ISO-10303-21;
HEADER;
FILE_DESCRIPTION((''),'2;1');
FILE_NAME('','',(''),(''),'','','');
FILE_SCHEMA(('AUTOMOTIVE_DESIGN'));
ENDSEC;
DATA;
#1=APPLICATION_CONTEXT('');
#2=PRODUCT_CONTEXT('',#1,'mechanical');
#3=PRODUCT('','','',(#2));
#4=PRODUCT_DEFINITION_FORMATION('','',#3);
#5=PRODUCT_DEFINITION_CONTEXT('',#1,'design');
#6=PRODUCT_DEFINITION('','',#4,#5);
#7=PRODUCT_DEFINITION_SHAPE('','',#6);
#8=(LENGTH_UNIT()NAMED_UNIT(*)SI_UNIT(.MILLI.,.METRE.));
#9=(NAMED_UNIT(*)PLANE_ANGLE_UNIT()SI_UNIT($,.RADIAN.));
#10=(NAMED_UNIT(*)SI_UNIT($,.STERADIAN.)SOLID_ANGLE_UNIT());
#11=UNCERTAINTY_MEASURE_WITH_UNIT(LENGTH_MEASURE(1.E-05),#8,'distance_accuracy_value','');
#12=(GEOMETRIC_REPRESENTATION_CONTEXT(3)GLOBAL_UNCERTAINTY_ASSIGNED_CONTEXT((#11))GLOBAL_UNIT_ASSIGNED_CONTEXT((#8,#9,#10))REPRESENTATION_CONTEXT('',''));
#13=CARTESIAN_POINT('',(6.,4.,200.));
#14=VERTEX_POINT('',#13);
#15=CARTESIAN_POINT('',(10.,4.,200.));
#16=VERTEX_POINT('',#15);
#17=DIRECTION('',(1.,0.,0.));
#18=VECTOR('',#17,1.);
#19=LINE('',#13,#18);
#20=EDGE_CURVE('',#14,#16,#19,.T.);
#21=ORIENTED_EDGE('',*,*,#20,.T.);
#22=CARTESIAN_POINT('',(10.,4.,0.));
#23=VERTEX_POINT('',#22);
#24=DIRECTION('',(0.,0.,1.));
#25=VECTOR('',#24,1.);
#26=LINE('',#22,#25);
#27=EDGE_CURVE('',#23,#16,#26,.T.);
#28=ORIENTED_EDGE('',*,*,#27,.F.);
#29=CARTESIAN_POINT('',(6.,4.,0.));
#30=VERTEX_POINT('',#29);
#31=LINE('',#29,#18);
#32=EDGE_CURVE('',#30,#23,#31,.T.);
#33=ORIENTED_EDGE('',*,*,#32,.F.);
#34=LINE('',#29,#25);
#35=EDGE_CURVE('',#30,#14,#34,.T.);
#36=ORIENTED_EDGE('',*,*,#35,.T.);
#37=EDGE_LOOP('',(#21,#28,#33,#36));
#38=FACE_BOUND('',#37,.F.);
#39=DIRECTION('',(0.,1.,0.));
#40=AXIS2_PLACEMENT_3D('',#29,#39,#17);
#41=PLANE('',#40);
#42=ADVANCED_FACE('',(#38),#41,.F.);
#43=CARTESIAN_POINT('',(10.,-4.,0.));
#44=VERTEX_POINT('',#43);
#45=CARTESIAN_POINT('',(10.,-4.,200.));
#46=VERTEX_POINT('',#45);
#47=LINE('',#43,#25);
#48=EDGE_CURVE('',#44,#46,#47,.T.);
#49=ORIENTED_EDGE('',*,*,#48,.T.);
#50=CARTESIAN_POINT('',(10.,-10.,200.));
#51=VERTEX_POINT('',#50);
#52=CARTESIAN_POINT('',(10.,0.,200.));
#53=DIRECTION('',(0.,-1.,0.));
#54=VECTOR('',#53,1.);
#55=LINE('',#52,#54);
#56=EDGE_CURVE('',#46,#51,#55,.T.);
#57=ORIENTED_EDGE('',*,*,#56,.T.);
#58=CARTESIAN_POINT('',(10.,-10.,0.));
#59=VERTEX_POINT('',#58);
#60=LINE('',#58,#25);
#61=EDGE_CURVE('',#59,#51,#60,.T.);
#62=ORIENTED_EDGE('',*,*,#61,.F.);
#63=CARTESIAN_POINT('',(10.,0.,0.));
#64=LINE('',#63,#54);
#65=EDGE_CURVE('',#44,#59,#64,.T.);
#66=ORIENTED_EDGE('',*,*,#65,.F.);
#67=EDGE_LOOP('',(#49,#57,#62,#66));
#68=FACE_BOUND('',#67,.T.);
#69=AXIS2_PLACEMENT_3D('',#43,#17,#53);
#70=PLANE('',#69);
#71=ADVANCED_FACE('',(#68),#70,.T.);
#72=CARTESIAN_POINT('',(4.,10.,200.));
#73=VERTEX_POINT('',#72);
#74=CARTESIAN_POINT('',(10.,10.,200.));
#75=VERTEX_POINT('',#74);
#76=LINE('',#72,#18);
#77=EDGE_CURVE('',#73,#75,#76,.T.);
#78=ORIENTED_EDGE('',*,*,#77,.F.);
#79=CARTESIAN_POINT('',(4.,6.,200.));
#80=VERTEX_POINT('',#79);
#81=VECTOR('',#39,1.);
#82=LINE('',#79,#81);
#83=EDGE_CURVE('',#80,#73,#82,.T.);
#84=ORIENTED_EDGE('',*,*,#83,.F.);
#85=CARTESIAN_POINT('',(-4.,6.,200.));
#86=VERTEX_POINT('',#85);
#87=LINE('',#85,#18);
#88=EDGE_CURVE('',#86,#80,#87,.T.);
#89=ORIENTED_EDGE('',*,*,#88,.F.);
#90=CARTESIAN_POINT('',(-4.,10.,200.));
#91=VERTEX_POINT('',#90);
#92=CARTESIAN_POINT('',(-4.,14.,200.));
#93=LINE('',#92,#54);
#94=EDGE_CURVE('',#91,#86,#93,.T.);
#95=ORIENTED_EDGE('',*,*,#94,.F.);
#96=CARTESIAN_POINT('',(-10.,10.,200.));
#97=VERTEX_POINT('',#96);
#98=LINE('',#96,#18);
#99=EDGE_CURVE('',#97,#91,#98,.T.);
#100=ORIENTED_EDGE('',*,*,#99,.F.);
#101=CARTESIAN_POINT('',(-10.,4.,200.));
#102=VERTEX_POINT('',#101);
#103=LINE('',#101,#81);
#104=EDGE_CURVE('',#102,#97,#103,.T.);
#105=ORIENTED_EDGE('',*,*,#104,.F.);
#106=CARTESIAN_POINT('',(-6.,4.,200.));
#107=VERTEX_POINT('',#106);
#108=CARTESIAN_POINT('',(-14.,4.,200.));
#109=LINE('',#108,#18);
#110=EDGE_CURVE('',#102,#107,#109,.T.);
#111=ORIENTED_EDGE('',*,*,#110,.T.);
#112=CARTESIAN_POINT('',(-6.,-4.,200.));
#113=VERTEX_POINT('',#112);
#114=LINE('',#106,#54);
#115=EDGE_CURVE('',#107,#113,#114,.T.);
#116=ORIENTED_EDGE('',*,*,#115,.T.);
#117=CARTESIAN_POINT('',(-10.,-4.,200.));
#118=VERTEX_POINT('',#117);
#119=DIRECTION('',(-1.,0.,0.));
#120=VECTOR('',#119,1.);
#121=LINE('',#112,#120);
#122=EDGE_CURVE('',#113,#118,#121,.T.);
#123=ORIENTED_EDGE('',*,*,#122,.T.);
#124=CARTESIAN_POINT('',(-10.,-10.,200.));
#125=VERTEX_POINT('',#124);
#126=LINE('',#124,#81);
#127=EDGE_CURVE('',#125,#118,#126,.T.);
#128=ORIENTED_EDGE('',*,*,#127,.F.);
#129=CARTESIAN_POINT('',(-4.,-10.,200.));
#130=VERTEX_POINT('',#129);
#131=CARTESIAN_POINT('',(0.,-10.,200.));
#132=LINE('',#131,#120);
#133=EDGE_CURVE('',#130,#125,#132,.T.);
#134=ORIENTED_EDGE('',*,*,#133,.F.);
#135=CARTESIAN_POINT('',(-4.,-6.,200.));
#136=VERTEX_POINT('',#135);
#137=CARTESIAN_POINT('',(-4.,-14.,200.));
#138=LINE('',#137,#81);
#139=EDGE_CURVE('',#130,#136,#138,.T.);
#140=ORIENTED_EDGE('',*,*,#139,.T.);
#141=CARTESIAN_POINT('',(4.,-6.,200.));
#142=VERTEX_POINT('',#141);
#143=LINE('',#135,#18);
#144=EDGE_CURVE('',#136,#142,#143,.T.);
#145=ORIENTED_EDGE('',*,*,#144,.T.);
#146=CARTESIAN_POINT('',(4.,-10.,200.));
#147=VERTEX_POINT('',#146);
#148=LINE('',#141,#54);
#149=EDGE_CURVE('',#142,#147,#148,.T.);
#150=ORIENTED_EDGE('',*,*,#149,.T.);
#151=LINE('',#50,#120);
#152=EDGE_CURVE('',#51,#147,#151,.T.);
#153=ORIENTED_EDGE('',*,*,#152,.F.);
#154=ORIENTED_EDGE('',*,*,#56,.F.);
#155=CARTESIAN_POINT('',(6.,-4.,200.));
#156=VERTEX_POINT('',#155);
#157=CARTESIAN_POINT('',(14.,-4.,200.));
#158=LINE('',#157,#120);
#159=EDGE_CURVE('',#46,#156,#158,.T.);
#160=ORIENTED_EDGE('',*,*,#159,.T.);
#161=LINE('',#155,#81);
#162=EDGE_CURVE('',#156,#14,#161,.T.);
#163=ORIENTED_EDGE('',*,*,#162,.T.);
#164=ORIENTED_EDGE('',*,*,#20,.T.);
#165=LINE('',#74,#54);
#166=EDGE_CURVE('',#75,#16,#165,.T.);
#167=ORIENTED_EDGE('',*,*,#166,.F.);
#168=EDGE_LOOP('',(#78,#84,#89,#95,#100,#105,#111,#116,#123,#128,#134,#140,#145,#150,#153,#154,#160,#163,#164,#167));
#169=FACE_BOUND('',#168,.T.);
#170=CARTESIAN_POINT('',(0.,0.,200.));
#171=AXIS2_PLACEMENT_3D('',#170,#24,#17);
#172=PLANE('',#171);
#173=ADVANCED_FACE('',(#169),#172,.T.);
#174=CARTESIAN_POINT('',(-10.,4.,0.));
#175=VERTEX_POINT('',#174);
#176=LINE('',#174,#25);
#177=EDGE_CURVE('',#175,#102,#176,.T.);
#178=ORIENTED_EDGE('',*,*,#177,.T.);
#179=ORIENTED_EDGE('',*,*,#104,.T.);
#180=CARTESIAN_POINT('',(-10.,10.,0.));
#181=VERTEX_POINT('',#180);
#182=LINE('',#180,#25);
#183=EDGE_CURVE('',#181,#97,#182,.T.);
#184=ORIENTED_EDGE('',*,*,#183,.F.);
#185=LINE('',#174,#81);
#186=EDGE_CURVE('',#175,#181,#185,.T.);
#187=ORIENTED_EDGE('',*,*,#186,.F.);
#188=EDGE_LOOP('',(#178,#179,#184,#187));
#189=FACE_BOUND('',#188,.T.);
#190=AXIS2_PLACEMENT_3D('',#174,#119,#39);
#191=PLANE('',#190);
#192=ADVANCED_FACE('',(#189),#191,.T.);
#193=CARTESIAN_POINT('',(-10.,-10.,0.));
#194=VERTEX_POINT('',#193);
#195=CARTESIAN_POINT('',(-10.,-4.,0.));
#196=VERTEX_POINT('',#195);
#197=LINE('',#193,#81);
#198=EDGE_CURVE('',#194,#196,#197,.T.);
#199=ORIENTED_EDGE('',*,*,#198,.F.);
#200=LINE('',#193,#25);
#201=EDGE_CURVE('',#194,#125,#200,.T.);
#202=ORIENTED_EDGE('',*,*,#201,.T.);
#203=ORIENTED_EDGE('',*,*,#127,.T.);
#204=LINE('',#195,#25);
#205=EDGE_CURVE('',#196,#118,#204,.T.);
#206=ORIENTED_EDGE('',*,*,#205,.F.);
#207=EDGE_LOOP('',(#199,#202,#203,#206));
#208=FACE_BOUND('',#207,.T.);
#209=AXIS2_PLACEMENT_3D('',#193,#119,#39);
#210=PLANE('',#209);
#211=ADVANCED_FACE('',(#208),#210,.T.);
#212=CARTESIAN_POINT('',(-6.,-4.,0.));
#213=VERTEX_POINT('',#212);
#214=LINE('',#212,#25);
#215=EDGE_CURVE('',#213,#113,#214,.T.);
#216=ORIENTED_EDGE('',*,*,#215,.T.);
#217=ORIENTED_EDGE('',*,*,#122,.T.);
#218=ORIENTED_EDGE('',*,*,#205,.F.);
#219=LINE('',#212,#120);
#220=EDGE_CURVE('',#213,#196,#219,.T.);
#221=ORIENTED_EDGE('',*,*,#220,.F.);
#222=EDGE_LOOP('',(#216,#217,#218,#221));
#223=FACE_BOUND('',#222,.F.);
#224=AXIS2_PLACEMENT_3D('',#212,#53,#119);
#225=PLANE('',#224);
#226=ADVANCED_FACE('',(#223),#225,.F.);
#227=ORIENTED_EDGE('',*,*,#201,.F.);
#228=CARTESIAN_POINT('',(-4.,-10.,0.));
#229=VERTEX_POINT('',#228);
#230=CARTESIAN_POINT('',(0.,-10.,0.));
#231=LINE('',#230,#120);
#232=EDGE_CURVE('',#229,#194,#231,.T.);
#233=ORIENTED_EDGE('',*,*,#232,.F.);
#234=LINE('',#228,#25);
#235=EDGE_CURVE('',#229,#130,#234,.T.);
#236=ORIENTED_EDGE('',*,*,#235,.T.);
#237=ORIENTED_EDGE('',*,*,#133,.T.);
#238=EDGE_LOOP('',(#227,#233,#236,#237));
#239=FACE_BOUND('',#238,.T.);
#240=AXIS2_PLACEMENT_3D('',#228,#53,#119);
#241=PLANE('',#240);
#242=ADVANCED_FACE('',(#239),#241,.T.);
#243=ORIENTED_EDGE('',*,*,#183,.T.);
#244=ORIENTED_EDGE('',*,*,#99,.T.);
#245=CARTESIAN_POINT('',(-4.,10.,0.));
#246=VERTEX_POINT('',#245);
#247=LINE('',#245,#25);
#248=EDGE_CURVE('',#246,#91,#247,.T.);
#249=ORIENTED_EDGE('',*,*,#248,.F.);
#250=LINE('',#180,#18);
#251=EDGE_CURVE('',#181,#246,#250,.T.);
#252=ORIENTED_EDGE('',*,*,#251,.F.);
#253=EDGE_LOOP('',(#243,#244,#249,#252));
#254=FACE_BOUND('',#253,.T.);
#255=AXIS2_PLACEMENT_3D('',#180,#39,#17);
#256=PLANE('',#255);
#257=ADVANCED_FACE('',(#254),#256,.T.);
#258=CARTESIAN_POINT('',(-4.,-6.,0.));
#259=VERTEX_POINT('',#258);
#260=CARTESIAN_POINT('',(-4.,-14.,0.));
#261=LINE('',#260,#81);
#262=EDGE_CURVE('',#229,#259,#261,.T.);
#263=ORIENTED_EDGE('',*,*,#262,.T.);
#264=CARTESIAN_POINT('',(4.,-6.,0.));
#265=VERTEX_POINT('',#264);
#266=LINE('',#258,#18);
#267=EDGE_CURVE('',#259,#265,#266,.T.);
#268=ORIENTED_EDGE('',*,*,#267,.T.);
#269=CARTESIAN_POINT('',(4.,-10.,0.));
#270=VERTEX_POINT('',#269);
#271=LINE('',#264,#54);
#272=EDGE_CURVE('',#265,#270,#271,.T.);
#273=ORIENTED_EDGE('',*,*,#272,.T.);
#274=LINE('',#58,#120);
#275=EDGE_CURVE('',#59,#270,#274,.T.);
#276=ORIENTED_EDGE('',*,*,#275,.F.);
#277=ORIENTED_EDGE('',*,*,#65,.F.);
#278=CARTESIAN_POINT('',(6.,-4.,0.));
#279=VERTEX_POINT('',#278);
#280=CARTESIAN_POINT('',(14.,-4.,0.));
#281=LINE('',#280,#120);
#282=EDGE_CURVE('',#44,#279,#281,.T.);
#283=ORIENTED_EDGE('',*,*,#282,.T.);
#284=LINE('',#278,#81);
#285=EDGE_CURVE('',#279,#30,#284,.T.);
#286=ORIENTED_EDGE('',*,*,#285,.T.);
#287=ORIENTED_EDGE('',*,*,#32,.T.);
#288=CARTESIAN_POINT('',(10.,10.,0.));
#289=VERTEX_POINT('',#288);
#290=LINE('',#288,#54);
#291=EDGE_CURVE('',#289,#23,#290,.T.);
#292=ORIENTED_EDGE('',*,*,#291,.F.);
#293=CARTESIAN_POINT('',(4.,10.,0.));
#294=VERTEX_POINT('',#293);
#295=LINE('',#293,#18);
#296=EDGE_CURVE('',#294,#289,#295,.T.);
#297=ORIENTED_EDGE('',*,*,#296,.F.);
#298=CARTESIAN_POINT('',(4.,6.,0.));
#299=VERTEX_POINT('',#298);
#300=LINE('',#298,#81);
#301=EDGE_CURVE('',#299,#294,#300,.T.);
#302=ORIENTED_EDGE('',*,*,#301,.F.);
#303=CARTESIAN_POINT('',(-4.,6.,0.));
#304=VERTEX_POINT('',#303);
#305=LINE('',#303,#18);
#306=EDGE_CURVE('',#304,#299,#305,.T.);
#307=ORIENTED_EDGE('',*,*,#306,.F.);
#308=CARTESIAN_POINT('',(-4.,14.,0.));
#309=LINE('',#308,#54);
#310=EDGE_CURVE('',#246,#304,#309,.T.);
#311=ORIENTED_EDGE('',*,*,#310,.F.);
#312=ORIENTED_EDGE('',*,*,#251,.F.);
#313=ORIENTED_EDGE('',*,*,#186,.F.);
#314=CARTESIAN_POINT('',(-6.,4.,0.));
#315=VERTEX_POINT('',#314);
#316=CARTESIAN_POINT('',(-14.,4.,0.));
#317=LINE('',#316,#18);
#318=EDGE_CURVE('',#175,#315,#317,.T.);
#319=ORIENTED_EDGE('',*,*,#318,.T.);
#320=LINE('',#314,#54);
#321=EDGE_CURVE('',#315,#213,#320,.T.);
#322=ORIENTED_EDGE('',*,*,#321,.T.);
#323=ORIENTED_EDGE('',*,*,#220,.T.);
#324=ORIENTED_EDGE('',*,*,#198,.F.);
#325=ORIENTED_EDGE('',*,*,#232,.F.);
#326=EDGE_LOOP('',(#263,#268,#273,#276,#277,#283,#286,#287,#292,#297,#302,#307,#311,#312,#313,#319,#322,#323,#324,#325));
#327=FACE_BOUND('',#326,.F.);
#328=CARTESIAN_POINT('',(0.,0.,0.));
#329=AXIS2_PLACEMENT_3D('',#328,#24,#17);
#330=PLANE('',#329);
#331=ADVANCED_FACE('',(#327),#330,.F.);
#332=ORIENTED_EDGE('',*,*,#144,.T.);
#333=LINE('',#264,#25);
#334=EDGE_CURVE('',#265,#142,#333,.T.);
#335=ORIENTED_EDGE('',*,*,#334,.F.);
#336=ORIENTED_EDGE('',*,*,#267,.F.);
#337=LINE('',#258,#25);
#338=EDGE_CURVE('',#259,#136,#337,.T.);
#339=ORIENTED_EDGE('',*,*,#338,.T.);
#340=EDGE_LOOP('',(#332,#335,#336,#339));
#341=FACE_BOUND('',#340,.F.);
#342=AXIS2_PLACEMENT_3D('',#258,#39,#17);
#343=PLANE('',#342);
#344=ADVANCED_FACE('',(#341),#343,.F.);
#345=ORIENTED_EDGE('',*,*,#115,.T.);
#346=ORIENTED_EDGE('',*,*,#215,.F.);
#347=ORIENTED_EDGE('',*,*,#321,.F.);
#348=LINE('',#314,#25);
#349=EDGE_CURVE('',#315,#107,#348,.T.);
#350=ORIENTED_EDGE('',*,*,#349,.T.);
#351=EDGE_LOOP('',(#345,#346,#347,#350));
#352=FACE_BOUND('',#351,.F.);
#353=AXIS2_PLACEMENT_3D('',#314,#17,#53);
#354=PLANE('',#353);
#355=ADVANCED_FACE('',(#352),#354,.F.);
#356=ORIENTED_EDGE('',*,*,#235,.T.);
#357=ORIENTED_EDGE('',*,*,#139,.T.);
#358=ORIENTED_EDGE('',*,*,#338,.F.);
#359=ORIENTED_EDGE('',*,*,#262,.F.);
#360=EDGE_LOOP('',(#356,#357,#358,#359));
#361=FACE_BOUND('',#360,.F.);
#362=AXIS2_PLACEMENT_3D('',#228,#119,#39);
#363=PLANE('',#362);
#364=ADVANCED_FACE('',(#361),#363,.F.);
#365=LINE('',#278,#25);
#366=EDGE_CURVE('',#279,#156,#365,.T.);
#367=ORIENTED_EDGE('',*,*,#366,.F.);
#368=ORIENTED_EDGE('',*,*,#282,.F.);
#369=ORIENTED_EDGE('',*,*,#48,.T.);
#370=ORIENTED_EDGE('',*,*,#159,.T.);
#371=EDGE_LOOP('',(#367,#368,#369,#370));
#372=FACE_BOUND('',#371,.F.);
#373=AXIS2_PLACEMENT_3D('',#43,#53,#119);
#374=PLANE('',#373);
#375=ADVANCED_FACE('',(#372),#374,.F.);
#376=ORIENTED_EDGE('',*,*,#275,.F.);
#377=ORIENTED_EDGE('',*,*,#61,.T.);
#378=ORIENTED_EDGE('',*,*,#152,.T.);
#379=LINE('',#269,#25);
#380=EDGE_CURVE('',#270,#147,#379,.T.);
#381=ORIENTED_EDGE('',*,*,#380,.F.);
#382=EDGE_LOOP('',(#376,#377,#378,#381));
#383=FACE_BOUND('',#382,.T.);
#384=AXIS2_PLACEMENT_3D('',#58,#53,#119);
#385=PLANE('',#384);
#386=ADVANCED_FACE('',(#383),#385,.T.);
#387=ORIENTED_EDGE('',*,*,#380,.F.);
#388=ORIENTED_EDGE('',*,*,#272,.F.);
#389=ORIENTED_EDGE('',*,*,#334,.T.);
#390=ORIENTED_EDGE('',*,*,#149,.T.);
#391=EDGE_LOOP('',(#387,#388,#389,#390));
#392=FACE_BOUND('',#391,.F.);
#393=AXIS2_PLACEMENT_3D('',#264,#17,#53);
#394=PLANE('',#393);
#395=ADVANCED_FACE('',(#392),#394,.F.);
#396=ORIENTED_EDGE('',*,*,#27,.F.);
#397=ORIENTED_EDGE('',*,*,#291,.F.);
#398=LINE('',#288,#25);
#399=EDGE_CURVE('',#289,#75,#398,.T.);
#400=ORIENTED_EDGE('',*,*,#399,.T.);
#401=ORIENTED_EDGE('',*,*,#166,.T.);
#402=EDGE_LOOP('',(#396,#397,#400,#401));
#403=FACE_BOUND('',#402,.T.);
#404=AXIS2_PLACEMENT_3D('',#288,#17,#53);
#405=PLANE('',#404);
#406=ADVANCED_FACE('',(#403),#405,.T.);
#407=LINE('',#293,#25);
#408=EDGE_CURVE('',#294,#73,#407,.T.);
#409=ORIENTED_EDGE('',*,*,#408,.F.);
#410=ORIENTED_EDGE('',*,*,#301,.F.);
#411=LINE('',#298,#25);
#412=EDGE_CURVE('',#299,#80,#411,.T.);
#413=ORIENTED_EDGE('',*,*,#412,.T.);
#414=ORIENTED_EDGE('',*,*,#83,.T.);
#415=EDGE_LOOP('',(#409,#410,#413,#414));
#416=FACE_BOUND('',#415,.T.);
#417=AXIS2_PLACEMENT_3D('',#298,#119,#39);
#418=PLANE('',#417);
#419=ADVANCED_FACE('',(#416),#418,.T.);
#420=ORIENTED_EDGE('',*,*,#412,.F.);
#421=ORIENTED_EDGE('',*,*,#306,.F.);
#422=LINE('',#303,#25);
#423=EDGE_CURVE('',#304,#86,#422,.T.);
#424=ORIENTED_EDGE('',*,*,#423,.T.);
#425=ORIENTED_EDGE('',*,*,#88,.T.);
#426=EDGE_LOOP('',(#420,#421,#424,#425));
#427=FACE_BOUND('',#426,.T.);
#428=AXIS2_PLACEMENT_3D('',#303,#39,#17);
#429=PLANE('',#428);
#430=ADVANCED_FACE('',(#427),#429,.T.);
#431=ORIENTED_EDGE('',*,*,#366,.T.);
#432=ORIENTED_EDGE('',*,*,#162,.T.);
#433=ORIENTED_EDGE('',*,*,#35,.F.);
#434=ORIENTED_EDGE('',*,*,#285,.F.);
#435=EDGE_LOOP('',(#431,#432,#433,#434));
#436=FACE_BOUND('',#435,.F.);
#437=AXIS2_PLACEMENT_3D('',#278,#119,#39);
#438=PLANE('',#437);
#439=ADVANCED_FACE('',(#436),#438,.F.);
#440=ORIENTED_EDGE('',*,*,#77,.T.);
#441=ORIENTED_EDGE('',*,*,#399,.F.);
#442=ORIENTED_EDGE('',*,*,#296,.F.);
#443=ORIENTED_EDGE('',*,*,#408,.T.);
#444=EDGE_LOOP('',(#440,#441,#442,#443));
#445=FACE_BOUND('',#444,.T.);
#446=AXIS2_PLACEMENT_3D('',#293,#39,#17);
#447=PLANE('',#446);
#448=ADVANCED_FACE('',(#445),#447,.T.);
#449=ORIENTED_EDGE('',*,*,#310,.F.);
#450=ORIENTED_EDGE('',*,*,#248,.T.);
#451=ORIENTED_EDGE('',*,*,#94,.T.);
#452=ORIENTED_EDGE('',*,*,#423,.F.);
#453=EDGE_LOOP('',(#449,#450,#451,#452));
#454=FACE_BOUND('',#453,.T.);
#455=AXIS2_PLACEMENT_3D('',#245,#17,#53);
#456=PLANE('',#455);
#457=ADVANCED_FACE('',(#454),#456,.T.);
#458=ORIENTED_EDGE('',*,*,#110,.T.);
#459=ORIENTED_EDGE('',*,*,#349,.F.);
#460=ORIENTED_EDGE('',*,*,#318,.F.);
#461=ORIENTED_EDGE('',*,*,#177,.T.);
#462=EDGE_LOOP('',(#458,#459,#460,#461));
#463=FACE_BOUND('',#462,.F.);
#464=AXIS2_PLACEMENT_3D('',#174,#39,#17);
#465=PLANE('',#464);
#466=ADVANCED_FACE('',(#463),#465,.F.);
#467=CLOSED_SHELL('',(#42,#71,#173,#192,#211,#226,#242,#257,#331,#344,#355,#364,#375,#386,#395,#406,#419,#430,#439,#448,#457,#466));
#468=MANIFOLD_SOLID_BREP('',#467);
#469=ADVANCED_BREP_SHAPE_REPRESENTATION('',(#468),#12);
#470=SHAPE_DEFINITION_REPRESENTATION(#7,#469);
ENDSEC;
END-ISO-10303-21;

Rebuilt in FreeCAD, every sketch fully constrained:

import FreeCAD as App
import Part
import Sketcher
Q = App.Units.Quantity


def add_polygon(sketch, points):
    """Adds a closed chain of lines whose ends are joined by coincident constraints."""
    first, n = sketch.GeometryCount, len(points)
    for a, b in zip(points, points[1:] + points[:1]):
        sketch.addGeometry(Part.LineSegment(App.Vector(*a, 0), App.Vector(*b, 0)), False)
    for i in range(n):
        sketch.addConstraint(Sketcher.Constraint("Coincident", first + i, 2, first + (i + 1) % n, 1))

doc = App.newDocument("Part")
body = doc.addObject("PartDesign::Body", "Body")

sketch1 = body.newObject("Sketcher::SketchObject", "Sketch")
sketch1.AttachmentSupport = (doc.getObject("XY_Plane"), [""])
sketch1.MapMode = "FlatFace"
add_polygon(sketch1, [(4, 6), (-4, 6), (-4, 10), (-10, 10), (-10, 4), (-6, 4), (-6, -4), (-10, -4), (-10, -10), (-4, -10), (-4, -6), (4, -6), (4, -10), (10, -10), (10, -4), (6, -4), (6, 4), (10, 4), (10, 10), (4, 10)])
sketch1.addConstraint([
    Sketcher.Constraint("Horizontal", 0),
    Sketcher.Constraint("Vertical", 1),
    Sketcher.Constraint("Horizontal", 2),
    Sketcher.Constraint("Vertical", 3),
    Sketcher.Constraint("Horizontal", 4),
    Sketcher.Constraint("Vertical", 5),
    Sketcher.Constraint("Horizontal", 6),
    Sketcher.Constraint("Vertical", 7),
    Sketcher.Constraint("Horizontal", 8),
    Sketcher.Constraint("Vertical", 9),
    Sketcher.Constraint("Horizontal", 10),
    Sketcher.Constraint("Vertical", 11),
    Sketcher.Constraint("Horizontal", 12),
    Sketcher.Constraint("Vertical", 13),
    Sketcher.Constraint("Horizontal", 14),
    Sketcher.Constraint("Vertical", 15),
    Sketcher.Constraint("Horizontal", 16),
    Sketcher.Constraint("Vertical", 17),
    Sketcher.Constraint("Horizontal", 18),
    Sketcher.Constraint("Vertical", 19),
    Sketcher.Constraint("Symmetric", 0, 2, 10, 2, -1, 1),
    Sketcher.Constraint("Symmetric", 2, 2, 12, 2, -1, 1),
    Sketcher.Constraint("Symmetric", 4, 2, 14, 2, -1, 1),
    Sketcher.Constraint("Symmetric", 6, 2, 16, 2, -1, 1),
    Sketcher.Constraint("Symmetric", 8, 2, 18, 2, -1, 1),
    Sketcher.Constraint("Symmetric", 8, 2, 11, 2, -2),
    Sketcher.Constraint("Symmetric", 6, 2, 13, 2, -2),
    Sketcher.Constraint("Equal", 16, 1),
    Sketcher.Constraint("Equal", 18, 3),
    Sketcher.Constraint("Equal", 10, 5),
    Sketcher.Constraint("DistanceX", 0, 2, 0, 1, Q("8 mm")),
    Sketcher.Constraint("DistanceX", 2, 2, 2, 1, Q("6 mm")),
    Sketcher.Constraint("DistanceX", 4, 1, 4, 2, Q("4 mm")),
])
pad1 = body.newObject("PartDesign::Pad", "Pad")
pad1.Profile = sketch1
pad1.Length = 200

doc.recompute()
